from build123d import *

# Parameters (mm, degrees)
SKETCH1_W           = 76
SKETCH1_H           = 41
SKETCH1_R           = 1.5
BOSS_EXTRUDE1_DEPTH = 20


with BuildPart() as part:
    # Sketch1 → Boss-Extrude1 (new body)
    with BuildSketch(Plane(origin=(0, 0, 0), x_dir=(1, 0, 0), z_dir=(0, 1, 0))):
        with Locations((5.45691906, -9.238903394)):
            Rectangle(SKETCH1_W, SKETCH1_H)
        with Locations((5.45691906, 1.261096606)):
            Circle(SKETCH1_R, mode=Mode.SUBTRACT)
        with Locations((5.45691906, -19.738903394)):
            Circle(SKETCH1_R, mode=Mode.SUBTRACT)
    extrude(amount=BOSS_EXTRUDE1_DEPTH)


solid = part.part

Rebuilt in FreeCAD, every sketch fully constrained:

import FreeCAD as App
import Part
import Sketcher
Q = App.Units.Quantity


def add_polygon(sketch, points):
    """Adds a closed chain of lines whose ends are joined by coincident constraints."""
    first, n = sketch.GeometryCount, len(points)
    for a, b in zip(points, points[1:] + points[:1]):
        sketch.addGeometry(Part.LineSegment(App.Vector(*a, 0), App.Vector(*b, 0)), False)
    for i in range(n):
        sketch.addConstraint(Sketcher.Constraint("Coincident", first + i, 2, first + (i + 1) % n, 1))

doc = App.newDocument("Part")
body = doc.addObject("PartDesign::Body", "Body")

sketch1 = body.newObject("Sketcher::SketchObject", "Sketch")
sketch1.AttachmentSupport = (doc.getObject("XZ_Plane"), [""])
sketch1.MapMode = "FlatFace"
add_polygon(sketch1, [(-32.5, -11.3), (-32.5, 29.7), (43.5, 29.7), (43.5, -11.3)])
sketch1.addGeometry(Part.Circle(App.Vector(5.5, 19.7, 0), App.Vector(0, 0, 1), 1.5), False)
sketch1.addGeometry(Part.Circle(App.Vector(5.5, -1.3, 0), App.Vector(0, 0, 1), 1.5), False)
sketch1.addConstraint(Sketcher.Constraint("Vertical", 0))
sketch1.addConstraint(Sketcher.Constraint("Horizontal", 1))
sketch1.addConstraint(Sketcher.Constraint("Vertical", 2))
sketch1.addConstraint(Sketcher.Constraint("Horizontal", 3))
sketch1.addConstraint(Sketcher.Constraint("Equal", 4, 5))
sketch1.addConstraint(Sketcher.Constraint("Vertical", 4, 3, 5, 3))
sketch1.addConstraint(Sketcher.Constraint("Diameter", 4, Q("3 mm")))
sketch1.addConstraint(Sketcher.Constraint("DistanceX", 1, 1, 1, 2, Q("76 mm")))
sketch1.addConstraint(Sketcher.Constraint("DistanceY", 0, 1, 0, 2, Q("41 mm")))
sketch1.addConstraint(Sketcher.Constraint("DistanceY", 5, 3, 4, 3, Q("21 mm")))
sketch1.addConstraint(Sketcher.Constraint("DistanceX", 0, 2, 4, 3, Q("38 mm")))
sketch1.addConstraint(Sketcher.Constraint("DistanceY", 4, 3, 0, 2, Q("10 mm")))
sketch1.addConstraint(Sketcher.Constraint("DistanceX", -1, 1, 4, 3, Q("5.456919 mm")))
sketch1.addConstraint(Sketcher.Constraint("DistanceY", -1, 1, 4, 3, Q("19.738903 mm")))
pad1 = body.newObject("PartDesign::Pad", "Pad")
pad1.Profile = sketch1
pad1.Length = 20
pad1.Reversed = True

doc.recompute()
